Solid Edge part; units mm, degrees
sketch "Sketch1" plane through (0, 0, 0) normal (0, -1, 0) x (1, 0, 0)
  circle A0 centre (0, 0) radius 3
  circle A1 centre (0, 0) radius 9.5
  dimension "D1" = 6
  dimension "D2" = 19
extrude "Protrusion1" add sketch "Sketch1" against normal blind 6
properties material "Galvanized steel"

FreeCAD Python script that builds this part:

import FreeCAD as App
import Part
import Sketcher
Q = App.Units.Quantity

doc = App.newDocument("Part")
body = doc.addObject("PartDesign::Body", "Body")

sketch1 = doc.addObject("Sketcher::SketchObject", "Sketch")
body.addObject(sketch1)
sketch1.AttachmentSupport = (doc.XZ_Plane, [""])
sketch1.MapMode = "FlatFace"
sketch1.addGeometry([
    Part.Circle(App.Vector(0, 0, 0), App.Vector(0, 0, 1), 9.5),
    Part.Circle(App.Vector(0, 0, 0), App.Vector(0, 0, 1), 3),
], False)
sketch1.addConstraint([
    Sketcher.Constraint("Coincident", 0, 3, -1, 1),
    Sketcher.Constraint("Coincident", 1, 3, -1, 1),
    Sketcher.Constraint("Diameter", 0, Q("19 mm")),
    Sketcher.Constraint("Diameter", 1, Q("6 mm")),
])
pad1 = doc.addObject("PartDesign::Pad", "Pad")
body.addObject(pad1)
pad1.Profile = sketch1
pad1.Length = 6
pad1.Reversed = True

doc.recompute()
